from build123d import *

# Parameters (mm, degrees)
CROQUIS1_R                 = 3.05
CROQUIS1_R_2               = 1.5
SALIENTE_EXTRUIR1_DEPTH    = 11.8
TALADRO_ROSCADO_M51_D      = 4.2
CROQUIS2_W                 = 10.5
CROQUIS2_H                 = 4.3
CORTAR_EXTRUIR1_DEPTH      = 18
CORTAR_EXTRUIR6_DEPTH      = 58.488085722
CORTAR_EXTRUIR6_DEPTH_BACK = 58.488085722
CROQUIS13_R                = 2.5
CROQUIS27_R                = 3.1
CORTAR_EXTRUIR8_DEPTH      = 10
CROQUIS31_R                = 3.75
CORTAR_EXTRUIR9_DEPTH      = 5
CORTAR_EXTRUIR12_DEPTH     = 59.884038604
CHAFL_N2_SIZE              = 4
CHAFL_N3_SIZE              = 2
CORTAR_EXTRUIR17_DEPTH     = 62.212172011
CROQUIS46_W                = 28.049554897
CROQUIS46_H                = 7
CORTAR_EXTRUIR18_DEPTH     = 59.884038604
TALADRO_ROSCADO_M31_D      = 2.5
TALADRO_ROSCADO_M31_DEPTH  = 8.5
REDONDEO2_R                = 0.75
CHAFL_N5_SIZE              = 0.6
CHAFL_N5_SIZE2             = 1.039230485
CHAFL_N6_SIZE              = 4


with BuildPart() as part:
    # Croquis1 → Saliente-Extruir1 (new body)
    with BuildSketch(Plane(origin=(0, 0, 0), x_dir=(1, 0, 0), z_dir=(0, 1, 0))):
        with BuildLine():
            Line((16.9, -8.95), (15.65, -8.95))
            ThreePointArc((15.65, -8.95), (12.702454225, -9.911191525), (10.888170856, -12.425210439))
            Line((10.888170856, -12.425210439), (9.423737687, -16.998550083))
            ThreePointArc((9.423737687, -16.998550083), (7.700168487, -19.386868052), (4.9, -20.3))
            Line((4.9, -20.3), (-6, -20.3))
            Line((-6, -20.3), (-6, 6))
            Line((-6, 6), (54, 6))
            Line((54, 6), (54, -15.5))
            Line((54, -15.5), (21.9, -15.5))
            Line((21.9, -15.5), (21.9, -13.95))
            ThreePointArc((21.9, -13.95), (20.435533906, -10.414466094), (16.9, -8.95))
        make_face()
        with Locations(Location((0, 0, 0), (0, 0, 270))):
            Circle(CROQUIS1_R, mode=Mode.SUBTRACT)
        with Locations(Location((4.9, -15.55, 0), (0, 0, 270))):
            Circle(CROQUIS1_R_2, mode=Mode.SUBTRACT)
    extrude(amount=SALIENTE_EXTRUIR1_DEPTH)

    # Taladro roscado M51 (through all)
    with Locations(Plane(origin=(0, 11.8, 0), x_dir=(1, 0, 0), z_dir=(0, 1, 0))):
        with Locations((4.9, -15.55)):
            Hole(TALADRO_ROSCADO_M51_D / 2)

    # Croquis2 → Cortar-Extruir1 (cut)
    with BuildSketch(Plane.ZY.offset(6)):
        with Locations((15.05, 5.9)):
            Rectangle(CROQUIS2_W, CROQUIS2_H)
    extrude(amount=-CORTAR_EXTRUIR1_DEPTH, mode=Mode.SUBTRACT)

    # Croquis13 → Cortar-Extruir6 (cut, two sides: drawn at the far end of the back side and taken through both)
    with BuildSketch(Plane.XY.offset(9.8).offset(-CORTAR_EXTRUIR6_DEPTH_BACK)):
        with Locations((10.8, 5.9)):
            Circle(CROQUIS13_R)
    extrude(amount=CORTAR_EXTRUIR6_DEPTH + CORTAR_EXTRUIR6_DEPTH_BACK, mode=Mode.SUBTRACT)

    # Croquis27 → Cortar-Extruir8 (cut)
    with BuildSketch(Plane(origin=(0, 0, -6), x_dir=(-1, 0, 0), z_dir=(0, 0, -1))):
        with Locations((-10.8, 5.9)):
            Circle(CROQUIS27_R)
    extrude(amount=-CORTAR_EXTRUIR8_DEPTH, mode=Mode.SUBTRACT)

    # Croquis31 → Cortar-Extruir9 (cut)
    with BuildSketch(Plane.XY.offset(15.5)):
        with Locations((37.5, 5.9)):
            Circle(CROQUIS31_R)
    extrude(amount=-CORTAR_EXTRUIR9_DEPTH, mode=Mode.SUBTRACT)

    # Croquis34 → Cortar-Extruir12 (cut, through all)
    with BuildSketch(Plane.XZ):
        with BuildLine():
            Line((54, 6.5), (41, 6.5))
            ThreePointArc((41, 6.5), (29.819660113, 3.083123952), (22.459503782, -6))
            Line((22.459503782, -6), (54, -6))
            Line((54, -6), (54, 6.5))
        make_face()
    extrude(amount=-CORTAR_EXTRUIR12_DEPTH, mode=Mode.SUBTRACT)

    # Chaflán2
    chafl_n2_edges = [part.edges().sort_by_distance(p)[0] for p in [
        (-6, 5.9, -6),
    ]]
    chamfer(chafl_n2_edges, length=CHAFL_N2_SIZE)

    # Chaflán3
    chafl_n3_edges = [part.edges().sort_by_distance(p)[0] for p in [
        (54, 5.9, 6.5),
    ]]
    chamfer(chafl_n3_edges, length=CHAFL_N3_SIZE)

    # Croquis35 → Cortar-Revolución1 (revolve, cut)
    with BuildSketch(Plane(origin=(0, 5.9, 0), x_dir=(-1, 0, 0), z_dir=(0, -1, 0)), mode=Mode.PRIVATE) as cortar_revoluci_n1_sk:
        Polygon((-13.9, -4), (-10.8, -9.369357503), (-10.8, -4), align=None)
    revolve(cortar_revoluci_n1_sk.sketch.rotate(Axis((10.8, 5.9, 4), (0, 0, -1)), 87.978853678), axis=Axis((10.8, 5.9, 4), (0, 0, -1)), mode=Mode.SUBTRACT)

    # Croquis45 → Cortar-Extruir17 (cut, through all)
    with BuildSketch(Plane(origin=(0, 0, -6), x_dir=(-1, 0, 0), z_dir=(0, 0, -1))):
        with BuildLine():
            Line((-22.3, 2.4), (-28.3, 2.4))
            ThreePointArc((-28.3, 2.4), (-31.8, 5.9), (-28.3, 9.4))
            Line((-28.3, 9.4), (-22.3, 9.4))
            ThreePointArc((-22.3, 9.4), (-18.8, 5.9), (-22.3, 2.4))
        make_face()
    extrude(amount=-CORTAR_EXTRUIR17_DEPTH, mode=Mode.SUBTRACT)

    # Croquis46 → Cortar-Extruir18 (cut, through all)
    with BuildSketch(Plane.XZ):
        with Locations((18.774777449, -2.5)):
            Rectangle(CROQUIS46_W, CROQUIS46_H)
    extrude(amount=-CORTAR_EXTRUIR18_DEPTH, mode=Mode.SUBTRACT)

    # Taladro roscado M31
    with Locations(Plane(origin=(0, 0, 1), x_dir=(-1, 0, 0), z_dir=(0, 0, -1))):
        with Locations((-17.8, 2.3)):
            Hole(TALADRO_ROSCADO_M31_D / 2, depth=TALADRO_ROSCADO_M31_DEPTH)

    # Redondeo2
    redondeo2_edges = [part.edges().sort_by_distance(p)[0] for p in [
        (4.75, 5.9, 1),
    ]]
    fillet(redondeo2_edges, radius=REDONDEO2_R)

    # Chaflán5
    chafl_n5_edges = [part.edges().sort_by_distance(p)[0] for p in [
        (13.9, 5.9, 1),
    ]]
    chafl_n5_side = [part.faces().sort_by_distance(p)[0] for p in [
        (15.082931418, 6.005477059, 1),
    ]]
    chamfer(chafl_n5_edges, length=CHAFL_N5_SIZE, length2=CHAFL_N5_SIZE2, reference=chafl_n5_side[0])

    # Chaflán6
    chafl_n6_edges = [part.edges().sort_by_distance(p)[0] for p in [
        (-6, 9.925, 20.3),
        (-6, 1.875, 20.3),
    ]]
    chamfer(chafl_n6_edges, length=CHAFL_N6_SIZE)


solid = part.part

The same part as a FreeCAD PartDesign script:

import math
import FreeCAD as App
import Part
import Sketcher
from FreeCAD import Vector
Q = App.Units.Quantity


def edges_at(feature, points):
    """Names of the edges that pass closest to the given points."""
    edges = feature.Shape.Edges
    near = lambda p: min(range(len(edges)), key=lambda i: edges[i].distToShape(Part.Vertex(*p))[0])
    return sorted({f"Edge{near(p) + 1}" for p in points})


def add_polygon(sketch, points):
    """Adds a closed chain of lines whose ends are joined by coincident constraints."""
    first, n = sketch.GeometryCount, len(points)
    for a, b in zip(points, points[1:] + points[:1]):
        sketch.addGeometry(Part.LineSegment(App.Vector(*a, 0), App.Vector(*b, 0)), False)
    for i in range(n):
        sketch.addConstraint(Sketcher.Constraint("Coincident", first + i, 2, first + (i + 1) % n, 1))

doc = App.newDocument("Part")
params = doc.addObject("Spreadsheet::Sheet", "Params")
for row, (alias, value) in enumerate([
    ("sketch1_diameter", "3 mm"),
    ("sketch1_radius", "5 mm"),
    ("sketch1_diameter2", "6.1 mm"),
    ("sketch1_width", "60 mm"),
    ("sketch1_radius2", "4.75 mm"),
    ("pad1_length", "11.8 mm"),
    ("sketch2_diameter", "4.2 mm"),
    ("hole_diameter", "4.2 mm"),
    ("sketch3_width", "4.3 mm"),
    ("sketch3_height", "10.5 mm"),
    ("pocket1_length", "18 mm"),
    ("sketch4_diameter", "5 mm"),
    ("sketch5_diameter", "6.2 mm"),
    ("pocket3_length", "10 mm"),
    ("sketch6_diameter", "7.5 mm"),
    ("pocket4_length", "5 mm"),
    ("sketch7_radius", "20 mm"),
    ("sketch7_width", "13 mm"),
    ("sketch7_height", "12.5 mm"),
    ("chamfer_size", "4 mm"),
    ("chamfer2_size", "2 mm"),
    ("sketch8_width", "3.1 mm"),
    ("groove_angle", "360 deg"),
    ("sketch9_radius", "3.5 mm"),
    ("sketch9_width", "6 mm"),
    ("sketch10_height", "7 mm"),
    ("sketch11_diameter", "2.5 mm"),
    ("hole2_diameter", "2.5 mm"),
    ("hole2_depth", "8.5 mm"),
    ("fillet_radius", "0.75 mm"),
    ("chamfer3_size", "0.6 mm"),
    ("chamfer3_size2", "1.03923 mm"),
    ("chamfer4_size", "4 mm"),
], start=1):
    params.set(f"A{row}", alias)
    params.set(f"B{row}", "=" + value)
    params.setAlias(f"B{row}", alias)

body = doc.addObject("PartDesign::Body", "Body")

# Sketch on XZ plane
sketch1 = doc.addObject("Sketcher::SketchObject", "Sketch")
body.addObject(sketch1)
sketch1.AttachmentSupport = (doc.XZ_Plane, [""])
sketch1.MapMode = "FlatFace"
sketch1.addGeometry([
    Part.LineSegment(Vector(15.7, 8.9, 0), Vector(16.9, 8.9, 0)),  # 0
    Part.ArcOfCircle(Part.Circle(Vector(16.9, 13.9, 0), Vector(0, 0, 1), 5), math.radians(-90), math.radians(0)),  # 1
    Part.LineSegment(Vector(21.9, 13.9, 0), Vector(21.9, 15.5, 0)),  # 2
    Part.LineSegment(Vector(21.9, 15.5, 0), Vector(54, 15.5, 0)),  # 3
    Part.LineSegment(Vector(54, 15.5, 0), Vector(54, -6, 0)),  # 4
    Part.LineSegment(Vector(54, -6, 0), Vector(-6, -6, 0)),  # 5
    Part.LineSegment(Vector(-6, -6, 0), Vector(-6, 20.3, 0)),  # 6
    Part.LineSegment(Vector(-6, 20.3, 0), Vector(4.9, 20.3, 0)),  # 7
    Part.ArcOfCircle(Part.Circle(Vector(4.9, 15.6, 0), Vector(0, 0, 1), 4.7), math.radians(18), math.radians(90)),  # 8
    Part.LineSegment(Vector(9.4, 17, 0), Vector(10.9, 12.4, 0)),  # 9
    Part.ArcOfCircle(Part.Circle(Vector(15.7, 14, 0), Vector(0, 0, 1), 5), math.radians(-162), math.radians(-90)),  # 10
    Part.Circle(Vector(4.9, 15.6, 0), Vector(0, 0, 1), 1.5),  # 11
    Part.Circle(Vector(0, 0, 0), Vector(0, 0, 1), 3),  # 12
], False)
sketch1.addConstraint([
    Sketcher.Constraint("Tangent", 0, 2, 1, 1),
    Sketcher.Constraint("Tangent", 1, 2, 2, 1),
    Sketcher.Constraint("Coincident", 2, 2, 3, 1),
    Sketcher.Constraint("Coincident", 3, 2, 4, 1),
    Sketcher.Constraint("Coincident", 4, 2, 5, 1),
    Sketcher.Constraint("Coincident", 5, 2, 6, 1),
    Sketcher.Constraint("Coincident", 6, 2, 7, 1),
    Sketcher.Constraint("Tangent", 7, 2, 8, 2),
    Sketcher.Constraint("Tangent", 8, 1, 9, 1),
    Sketcher.Constraint("Tangent", 9, 2, 10, 1),
    Sketcher.Constraint("Tangent", 10, 2, 0, 1),
    Sketcher.Constraint("Horizontal", 0),
    Sketcher.Constraint("Vertical", 2),
    Sketcher.Constraint("Horizontal", 3),
    Sketcher.Constraint("Vertical", 4),
    Sketcher.Constraint("Horizontal", 5),
    Sketcher.Constraint("Vertical", 6),
    Sketcher.Constraint("Horizontal", 7),
    Sketcher.Constraint("Coincident", 12, 3, -1, 1),
    Sketcher.Constraint("Coincident", 11, 3, 8, 3),
    Sketcher.Constraint("Equal", 1, 10),
    Sketcher.Constraint("Diameter", 11, 3.0),
    Sketcher.Constraint("Radius", 1, 5.0),
    Sketcher.Constraint("Diameter", 12, 6.1),
    Sketcher.Constraint("DistanceX", 5, 2, 5, 1, 60.0),
    Sketcher.Constraint("Radius", 8, 4.75),
    Sketcher.Constraint("DistanceX", 3, 1, 3, 2, 32.1),
    Sketcher.Constraint("DistanceX", 7, 1, 7, 2, 10.9),
    Sketcher.Constraint("DistanceY", 4, 2, 4, 1, 21.5),
    Sketcher.Constraint("DistanceY", 6, 1, 6, 2, 26.3),
    Sketcher.Constraint("DistanceX", -1, 1, 3, 2, 54.0),
    Sketcher.Constraint("DistanceY", 4, 2, -1, 1, 6.0),
    Sketcher.Constraint("DistanceX", 0, 1, 0, 2, 1.25),
    Sketcher.Constraint("DistanceY", 2, 1, 2, 2, 1.55),
])
sketch1.setExpression("Constraints[21]", "Params.sketch1_diameter")
sketch1.setExpression("Constraints[22]", "Params.sketch1_radius")
sketch1.setExpression("Constraints[23]", "Params.sketch1_diameter2")
sketch1.setExpression("Constraints[24]", "Params.sketch1_width")
sketch1.setExpression("Constraints[25]", "Params.sketch1_radius2")
pad1 = doc.addObject("PartDesign::Pad", "Pad")
body.addObject(pad1)
pad1.Profile = sketch1
pad1.setExpression("Length", "Params.pad1_length")
pad1.Reversed = True

# Sketch on XZ plane
sketch2 = doc.addObject("Sketcher::SketchObject", "Sketch001")
body.addObject(sketch2)
sketch2.AttachmentSupport = (doc.XZ_Plane, [""])
sketch2.MapMode = "FlatFace"
sketch2.AttachmentOffset = App.Placement(Vector(0, 0, -11.8), App.Rotation())
sketch2.addGeometry(Part.Circle(Vector(4.9, 15.6, 0), Vector(0, 0, 1), 2.1), False)
sketch2.addConstraint([
    Sketcher.Constraint("Diameter", 0, 4.2),
    Sketcher.Constraint("DistanceX", -1, 1, 0, 3, 4.9),
    Sketcher.Constraint("DistanceY", -1, 1, 0, 3, 15.55),
])
sketch2.setExpression("Constraints[0]", "Params.sketch2_diameter")
doc.recompute()
hole = doc.addObject("PartDesign::Hole", "Hole")
body.addObject(hole)
hole.Profile = sketch2
hole.ThreadType = "None"
hole.setExpression("Diameter", "Params.hole_diameter")
hole.DepthType = "ThroughAll"
hole.Reversed = True

# Sketch on YZ plane
sketch3 = doc.addObject("Sketcher::SketchObject", "Sketch002")
body.addObject(sketch3)
sketch3.AttachmentSupport = (doc.YZ_Plane, [""])
sketch3.MapMode = "FlatFace"
sketch3.AttachmentOffset = App.Placement(Vector(0, 0, -6), App.Rotation())
add_polygon(sketch3, [(8.1, 9.8), (3.8, 9.8), (3.8, 20.3), (8.1, 20.3)])  # lines 0-3
sketch3.addConstraint([
    Sketcher.Constraint("Horizontal", 0),
    Sketcher.Constraint("Vertical", 1),
    Sketcher.Constraint("Horizontal", 2),
    Sketcher.Constraint("Vertical", 3),
    Sketcher.Constraint("DistanceX", 0, 2, 0, 1, 4.3),
    Sketcher.Constraint("DistanceY", 1, 1, 1, 2, 10.5),
    Sketcher.Constraint("DistanceY", -1, 1, 0, 2, 9.8),
    Sketcher.Constraint("DistanceX", -1, 1, 0, 2, 3.75),
])
sketch3.setExpression("Constraints[8]", "Params.sketch3_width")
sketch3.setExpression("Constraints[9]", "Params.sketch3_height")
pocket1 = doc.addObject("PartDesign::Pocket", "Pocket")
body.addObject(pocket1)
pocket1.Profile = sketch3
pocket1.setExpression("Length", "Params.pocket1_length")
pocket1.Reversed = True

# Sketch on XY plane
sketch4 = doc.addObject("Sketcher::SketchObject", "Sketch003")
body.addObject(sketch4)
sketch4.AttachmentSupport = (doc.XY_Plane, [""])
sketch4.MapMode = "FlatFace"
sketch4.AttachmentOffset = App.Placement(Vector(0, 0, 9.8), App.Rotation())
sketch4.addGeometry(Part.Circle(Vector(10.8, 5.9, 0), Vector(0, 0, 1), 2.5), False)
sketch4.addConstraint([
    Sketcher.Constraint("Diameter", 0, 5.0),
    Sketcher.Constraint("DistanceX", -1, 1, 0, 3, 10.8),
    Sketcher.Constraint("DistanceY", -1, 1, 0, 3, 5.9),
])
sketch4.setExpression("Constraints[0]", "Params.sketch4_diameter")
pocket2 = doc.addObject("PartDesign::Pocket", "Pocket001")
body.addObject(pocket2)
pocket2.Profile = sketch4
pocket2.Type = "ThroughAll"
pocket2.Midplane = True

# Sketch on XY plane
sketch5 = doc.addObject("Sketcher::SketchObject", "Sketch004")
body.addObject(sketch5)
sketch5.AttachmentSupport = (doc.XY_Plane, [""])
sketch5.MapMode = "FlatFace"
sketch5.AttachmentOffset = App.Placement(Vector(0, 0, -6), App.Rotation())
sketch5.addGeometry(Part.Circle(Vector(10.8, 5.9, 0), Vector(0, 0, 1), 3.1), False)
sketch5.addConstraint([
    Sketcher.Constraint("Diameter", 0, 6.2),
    Sketcher.Constraint("DistanceX", -1, 1, 0, 3, 10.8),
    Sketcher.Constraint("DistanceY", -1, 1, 0, 3, 5.9),
])
sketch5.setExpression("Constraints[0]", "Params.sketch5_diameter")
pocket3 = doc.addObject("PartDesign::Pocket", "Pocket002")
body.addObject(pocket3)
pocket3.Profile = sketch5
pocket3.setExpression("Length", "Params.pocket3_length")
pocket3.Reversed = True

# Sketch on XY plane
sketch6 = doc.addObject("Sketcher::SketchObject", "Sketch005")
body.addObject(sketch6)
sketch6.AttachmentSupport = (doc.XY_Plane, [""])
sketch6.MapMode = "FlatFace"
sketch6.AttachmentOffset = App.Placement(Vector(0, 0, 15.5), App.Rotation())
sketch6.addGeometry(Part.Circle(Vector(37.5, 5.9, 0), Vector(0, 0, 1), 3.8), False)
sketch6.addConstraint([
    Sketcher.Constraint("Diameter", 0, 7.5),
    Sketcher.Constraint("DistanceX", -1, 1, 0, 3, 37.5),
    Sketcher.Constraint("DistanceY", -1, 1, 0, 3, 5.9),
])
sketch6.setExpression("Constraints[0]", "Params.sketch6_diameter")
pocket4 = doc.addObject("PartDesign::Pocket", "Pocket003")
body.addObject(pocket4)
pocket4.Profile = sketch6
pocket4.setExpression("Length", "Params.pocket4_length")

# Sketch on XZ plane
sketch7 = doc.addObject("Sketcher::SketchObject", "Sketch006")
body.addObject(sketch7)
sketch7.AttachmentSupport = (doc.XZ_Plane, [""])
sketch7.MapMode = "FlatFace"
sketch7.addGeometry([
    Part.LineSegment(Vector(54, 6, 0), Vector(41, 6, 0)),
    Part.ArcOfCircle(Part.Circle(Vector(41, -14, 0), Vector(0, 0, 1), 20), math.radians(90), math.radians(158)),
    Part.LineSegment(Vector(22, -6, 0), Vector(54, -6, 0)),
    Part.LineSegment(Vector(54, -6, 0), Vector(54, 6, 0)),
], False)
sketch7.addConstraint([
    Sketcher.Constraint("Tangent", 0, 2, 1, 1),
    Sketcher.Constraint("Coincident", 1, 2, 2, 1),
    Sketcher.Constraint("Coincident", 2, 2, 3, 1),
    Sketcher.Constraint("Coincident", 3, 2, 0, 1),
    Sketcher.Constraint("Horizontal", 0),
    Sketcher.Constraint("Horizontal", 2),
    Sketcher.Constraint("Vertical", 3),
    Sketcher.Constraint("Radius", 1, 20.0),
    Sketcher.Constraint("DistanceX", 0, 2, 0, 1, 13.0),
    Sketcher.Constraint("DistanceY", 3, 1, 3, 2, 12.5),
    Sketcher.Constraint("DistanceX", -1, 1, 1, 3, 41.0),
    Sketcher.Constraint("DistanceY", 1, 2, -1, 1, 6.0),
])
sketch7.setExpression("Constraints[7]", "Params.sketch7_radius")
sketch7.setExpression("Constraints[8]", "Params.sketch7_width")
sketch7.setExpression("Constraints[9]", "Params.sketch7_height")
pocket5 = doc.addObject("PartDesign::Pocket", "Pocket004")
body.addObject(pocket5)
pocket5.Profile = sketch7
pocket5.Type = "ThroughAll"
doc.recompute()

chamfer = doc.addObject("PartDesign::Chamfer", "Chamfer")
body.addObject(chamfer)
chamfer.Base = (pocket5, edges_at(pocket5, [(-6, 5.9, -6)]))
chamfer.setExpression("Size", "Params.chamfer_size")
doc.recompute()

chamfer2 = doc.addObject("PartDesign::Chamfer", "Chamfer001")
body.addObject(chamfer2)
chamfer2.Base = (chamfer, edges_at(chamfer, [(54, 5.9, 6.5)]))
chamfer2.setExpression("Size", "Params.chamfer2_size")

# Sketch on XZ plane
sketch8 = doc.addObject("Sketcher::SketchObject", "Sketch007")
body.addObject(sketch8)
sketch8.AttachmentSupport = (doc.XZ_Plane, [""])
sketch8.MapMode = "FlatFace"
sketch8.AttachmentOffset = App.Placement(Vector(0, 0, -5.9), App.Rotation())
add_polygon(sketch8, [(13.9, 4), (10.8, 9.4), (10.8, 4)])  # lines 0-2
sketch8.addGeometry(Part.LineSegment(Vector(10.8, 9.4, 0), Vector(10.8, 4, 0)), True)  # axis
sketch8.addConstraint([
    Sketcher.Constraint("Vertical", 1),
    Sketcher.Constraint("Horizontal", 2),
    Sketcher.Constraint("Vertical", 3),
    Sketcher.Constraint("Coincident", 3, 1, 0, 2),
    Sketcher.Constraint("Horizontal", 2, 2, 3, 2),
    Sketcher.Constraint("Angle", 0, Q("120 deg")),
    Sketcher.Constraint("DistanceX", 2, 1, 2, 2, 3.1),
    Sketcher.Constraint("DistanceY", -1, 1, 1, 2, 4.0),
    Sketcher.Constraint("DistanceX", -1, 1, 0, 2, 10.8),
])
sketch8.setExpression("Constraints[9]", "Params.sketch8_width")
groove = doc.addObject("PartDesign::Groove", "Groove")
body.addObject(groove)
groove.Profile = sketch8
groove.ReferenceAxis = (sketch8, ["Axis0"])
groove.setExpression("Angle", "Params.groove_angle")

# Sketch on XY plane
sketch9 = doc.addObject("Sketcher::SketchObject", "Sketch008")
body.addObject(sketch9)
sketch9.AttachmentSupport = (doc.XY_Plane, [""])
sketch9.MapMode = "FlatFace"
sketch9.AttachmentOffset = App.Placement(Vector(0, 0, -6), App.Rotation())
sketch9.addGeometry([
    Part.LineSegment(Vector(28.3, 2.4, 0), Vector(22.3, 2.4, 0)),
    Part.ArcOfCircle(Part.Circle(Vector(22.3, 5.9, 0), Vector(0, 0, 1), 3.5), math.radians(90), math.radians(270)),
    Part.LineSegment(Vector(22.3, 9.4, 0), Vector(28.3, 9.4, 0)),
    Part.ArcOfCircle(Part.Circle(Vector(28.3, 5.9, 0), Vector(0, 0, 1), 3.5), math.radians(-90), math.radians(90)),
], False)
sketch9.addConstraint([
    Sketcher.Constraint("Tangent", 0, 2, 1, 2),
    Sketcher.Constraint("Tangent", 1, 1, 2, 1),
    Sketcher.Constraint("Tangent", 2, 2, 3, 2),
    Sketcher.Constraint("Tangent", 3, 1, 0, 1),
    Sketcher.Constraint("Horizontal", 0),
    Sketcher.Constraint("Horizontal", 2),
    Sketcher.Constraint("Radius", 1, 3.5),
    Sketcher.Constraint("DistanceX", 0, 2, 0, 1, 6.0),
    Sketcher.Constraint("DistanceX", -1, 1, 1, 3, 22.3),
    Sketcher.Constraint("DistanceY", -1, 1, 1, 3, 5.9),
])
sketch9.setExpression("Constraints[6]", "Params.sketch9_radius")
sketch9.setExpression("Constraints[7]", "Params.sketch9_width")
pocket6 = doc.addObject("PartDesign::Pocket", "Pocket005")
body.addObject(pocket6)
pocket6.Profile = sketch9
pocket6.Type = "ThroughAll"
pocket6.Reversed = True

# Sketch on XZ plane
sketch10 = doc.addObject("Sketcher::SketchObject", "Sketch009")
body.addObject(sketch10)
sketch10.AttachmentSupport = (doc.XZ_Plane, [""])
sketch10.MapMode = "FlatFace"
add_polygon(sketch10, [(5, 1), (5, -6), (33, -6), (33, 1)])  # lines 0-3
sketch10.addConstraint([
    Sketcher.Constraint("Vertical", 0),
    Sketcher.Constraint("Horizontal", 1),
    Sketcher.Constraint("Vertical", 2),
    Sketcher.Constraint("Horizontal", 3),
    Sketcher.Constraint("DistanceY", 0, 2, 0, 1, 7.0),
    Sketcher.Constraint("DistanceY", 0, 2, -1, 1, 6.0),
    Sketcher.Constraint("DistanceX", -1, 1, 0, 2, 4.75),
    Sketcher.Constraint("DistanceX", 1, 1, 1, 2, 28.049555),
])
sketch10.setExpression("Constraints[8]", "Params.sketch10_height")
pocket7 = doc.addObject("PartDesign::Pocket", "Pocket006")
body.addObject(pocket7)
pocket7.Profile = sketch10
pocket7.Type = "ThroughAll"

# Sketch on XY plane
sketch11 = doc.addObject("Sketcher::SketchObject", "Sketch010")
body.addObject(sketch11)
sketch11.AttachmentSupport = (doc.XY_Plane, [""])
sketch11.MapMode = "FlatFace"
sketch11.AttachmentOffset = App.Placement(Vector(0, 0, 1), App.Rotation())
sketch11.addGeometry(Part.Circle(Vector(17.8, 2.3, 0), Vector(0, 0, 1), 1.2), False)
sketch11.addConstraint([
    Sketcher.Constraint("Diameter", 0, 2.5),
    Sketcher.Constraint("DistanceX", -1, 1, 0, 3, 17.8),
    Sketcher.Constraint("DistanceY", -1, 1, 0, 3, 2.3),
])
sketch11.setExpression("Constraints[0]", "Params.sketch11_diameter")
doc.recompute()
hole2 = doc.addObject("PartDesign::Hole", "Hole001")
body.addObject(hole2)
hole2.Profile = sketch11
hole2.ThreadType = "None"
hole2.setExpression("Diameter", "Params.hole2_diameter")
hole2.DepthType = "Dimension"
hole2.setExpression("Depth", "Params.hole2_depth")
hole2.DrillPoint = "Flat"
hole2.Reversed = True
doc.recompute()

fillet = doc.addObject("PartDesign::Fillet", "Fillet")
body.addObject(fillet)
fillet.Base = (hole2, edges_at(hole2, [(4.75, 5.9, 1)]))
fillet.setExpression("Radius", "Params.fillet_radius")
doc.recompute()

chamfer3 = doc.addObject("PartDesign::Chamfer", "Chamfer002")
body.addObject(chamfer3)
chamfer3.Base = (fillet, edges_at(fillet, [(13.9, 5.9, 1)]))
chamfer3.ChamferType = "Two distances"
chamfer3.setExpression("Size", "Params.chamfer3_size")
chamfer3.setExpression("Size2", "Params.chamfer3_size2")
doc.recompute()

chamfer4 = doc.addObject("PartDesign::Chamfer", "Chamfer003")
body.addObject(chamfer4)
chamfer4.Base = (chamfer3, edges_at(chamfer3, [(-6, 9.925, 20.3), (-6, 1.875, 20.3)]))
chamfer4.setExpression("Size", "Params.chamfer4_size")

doc.recompute()
